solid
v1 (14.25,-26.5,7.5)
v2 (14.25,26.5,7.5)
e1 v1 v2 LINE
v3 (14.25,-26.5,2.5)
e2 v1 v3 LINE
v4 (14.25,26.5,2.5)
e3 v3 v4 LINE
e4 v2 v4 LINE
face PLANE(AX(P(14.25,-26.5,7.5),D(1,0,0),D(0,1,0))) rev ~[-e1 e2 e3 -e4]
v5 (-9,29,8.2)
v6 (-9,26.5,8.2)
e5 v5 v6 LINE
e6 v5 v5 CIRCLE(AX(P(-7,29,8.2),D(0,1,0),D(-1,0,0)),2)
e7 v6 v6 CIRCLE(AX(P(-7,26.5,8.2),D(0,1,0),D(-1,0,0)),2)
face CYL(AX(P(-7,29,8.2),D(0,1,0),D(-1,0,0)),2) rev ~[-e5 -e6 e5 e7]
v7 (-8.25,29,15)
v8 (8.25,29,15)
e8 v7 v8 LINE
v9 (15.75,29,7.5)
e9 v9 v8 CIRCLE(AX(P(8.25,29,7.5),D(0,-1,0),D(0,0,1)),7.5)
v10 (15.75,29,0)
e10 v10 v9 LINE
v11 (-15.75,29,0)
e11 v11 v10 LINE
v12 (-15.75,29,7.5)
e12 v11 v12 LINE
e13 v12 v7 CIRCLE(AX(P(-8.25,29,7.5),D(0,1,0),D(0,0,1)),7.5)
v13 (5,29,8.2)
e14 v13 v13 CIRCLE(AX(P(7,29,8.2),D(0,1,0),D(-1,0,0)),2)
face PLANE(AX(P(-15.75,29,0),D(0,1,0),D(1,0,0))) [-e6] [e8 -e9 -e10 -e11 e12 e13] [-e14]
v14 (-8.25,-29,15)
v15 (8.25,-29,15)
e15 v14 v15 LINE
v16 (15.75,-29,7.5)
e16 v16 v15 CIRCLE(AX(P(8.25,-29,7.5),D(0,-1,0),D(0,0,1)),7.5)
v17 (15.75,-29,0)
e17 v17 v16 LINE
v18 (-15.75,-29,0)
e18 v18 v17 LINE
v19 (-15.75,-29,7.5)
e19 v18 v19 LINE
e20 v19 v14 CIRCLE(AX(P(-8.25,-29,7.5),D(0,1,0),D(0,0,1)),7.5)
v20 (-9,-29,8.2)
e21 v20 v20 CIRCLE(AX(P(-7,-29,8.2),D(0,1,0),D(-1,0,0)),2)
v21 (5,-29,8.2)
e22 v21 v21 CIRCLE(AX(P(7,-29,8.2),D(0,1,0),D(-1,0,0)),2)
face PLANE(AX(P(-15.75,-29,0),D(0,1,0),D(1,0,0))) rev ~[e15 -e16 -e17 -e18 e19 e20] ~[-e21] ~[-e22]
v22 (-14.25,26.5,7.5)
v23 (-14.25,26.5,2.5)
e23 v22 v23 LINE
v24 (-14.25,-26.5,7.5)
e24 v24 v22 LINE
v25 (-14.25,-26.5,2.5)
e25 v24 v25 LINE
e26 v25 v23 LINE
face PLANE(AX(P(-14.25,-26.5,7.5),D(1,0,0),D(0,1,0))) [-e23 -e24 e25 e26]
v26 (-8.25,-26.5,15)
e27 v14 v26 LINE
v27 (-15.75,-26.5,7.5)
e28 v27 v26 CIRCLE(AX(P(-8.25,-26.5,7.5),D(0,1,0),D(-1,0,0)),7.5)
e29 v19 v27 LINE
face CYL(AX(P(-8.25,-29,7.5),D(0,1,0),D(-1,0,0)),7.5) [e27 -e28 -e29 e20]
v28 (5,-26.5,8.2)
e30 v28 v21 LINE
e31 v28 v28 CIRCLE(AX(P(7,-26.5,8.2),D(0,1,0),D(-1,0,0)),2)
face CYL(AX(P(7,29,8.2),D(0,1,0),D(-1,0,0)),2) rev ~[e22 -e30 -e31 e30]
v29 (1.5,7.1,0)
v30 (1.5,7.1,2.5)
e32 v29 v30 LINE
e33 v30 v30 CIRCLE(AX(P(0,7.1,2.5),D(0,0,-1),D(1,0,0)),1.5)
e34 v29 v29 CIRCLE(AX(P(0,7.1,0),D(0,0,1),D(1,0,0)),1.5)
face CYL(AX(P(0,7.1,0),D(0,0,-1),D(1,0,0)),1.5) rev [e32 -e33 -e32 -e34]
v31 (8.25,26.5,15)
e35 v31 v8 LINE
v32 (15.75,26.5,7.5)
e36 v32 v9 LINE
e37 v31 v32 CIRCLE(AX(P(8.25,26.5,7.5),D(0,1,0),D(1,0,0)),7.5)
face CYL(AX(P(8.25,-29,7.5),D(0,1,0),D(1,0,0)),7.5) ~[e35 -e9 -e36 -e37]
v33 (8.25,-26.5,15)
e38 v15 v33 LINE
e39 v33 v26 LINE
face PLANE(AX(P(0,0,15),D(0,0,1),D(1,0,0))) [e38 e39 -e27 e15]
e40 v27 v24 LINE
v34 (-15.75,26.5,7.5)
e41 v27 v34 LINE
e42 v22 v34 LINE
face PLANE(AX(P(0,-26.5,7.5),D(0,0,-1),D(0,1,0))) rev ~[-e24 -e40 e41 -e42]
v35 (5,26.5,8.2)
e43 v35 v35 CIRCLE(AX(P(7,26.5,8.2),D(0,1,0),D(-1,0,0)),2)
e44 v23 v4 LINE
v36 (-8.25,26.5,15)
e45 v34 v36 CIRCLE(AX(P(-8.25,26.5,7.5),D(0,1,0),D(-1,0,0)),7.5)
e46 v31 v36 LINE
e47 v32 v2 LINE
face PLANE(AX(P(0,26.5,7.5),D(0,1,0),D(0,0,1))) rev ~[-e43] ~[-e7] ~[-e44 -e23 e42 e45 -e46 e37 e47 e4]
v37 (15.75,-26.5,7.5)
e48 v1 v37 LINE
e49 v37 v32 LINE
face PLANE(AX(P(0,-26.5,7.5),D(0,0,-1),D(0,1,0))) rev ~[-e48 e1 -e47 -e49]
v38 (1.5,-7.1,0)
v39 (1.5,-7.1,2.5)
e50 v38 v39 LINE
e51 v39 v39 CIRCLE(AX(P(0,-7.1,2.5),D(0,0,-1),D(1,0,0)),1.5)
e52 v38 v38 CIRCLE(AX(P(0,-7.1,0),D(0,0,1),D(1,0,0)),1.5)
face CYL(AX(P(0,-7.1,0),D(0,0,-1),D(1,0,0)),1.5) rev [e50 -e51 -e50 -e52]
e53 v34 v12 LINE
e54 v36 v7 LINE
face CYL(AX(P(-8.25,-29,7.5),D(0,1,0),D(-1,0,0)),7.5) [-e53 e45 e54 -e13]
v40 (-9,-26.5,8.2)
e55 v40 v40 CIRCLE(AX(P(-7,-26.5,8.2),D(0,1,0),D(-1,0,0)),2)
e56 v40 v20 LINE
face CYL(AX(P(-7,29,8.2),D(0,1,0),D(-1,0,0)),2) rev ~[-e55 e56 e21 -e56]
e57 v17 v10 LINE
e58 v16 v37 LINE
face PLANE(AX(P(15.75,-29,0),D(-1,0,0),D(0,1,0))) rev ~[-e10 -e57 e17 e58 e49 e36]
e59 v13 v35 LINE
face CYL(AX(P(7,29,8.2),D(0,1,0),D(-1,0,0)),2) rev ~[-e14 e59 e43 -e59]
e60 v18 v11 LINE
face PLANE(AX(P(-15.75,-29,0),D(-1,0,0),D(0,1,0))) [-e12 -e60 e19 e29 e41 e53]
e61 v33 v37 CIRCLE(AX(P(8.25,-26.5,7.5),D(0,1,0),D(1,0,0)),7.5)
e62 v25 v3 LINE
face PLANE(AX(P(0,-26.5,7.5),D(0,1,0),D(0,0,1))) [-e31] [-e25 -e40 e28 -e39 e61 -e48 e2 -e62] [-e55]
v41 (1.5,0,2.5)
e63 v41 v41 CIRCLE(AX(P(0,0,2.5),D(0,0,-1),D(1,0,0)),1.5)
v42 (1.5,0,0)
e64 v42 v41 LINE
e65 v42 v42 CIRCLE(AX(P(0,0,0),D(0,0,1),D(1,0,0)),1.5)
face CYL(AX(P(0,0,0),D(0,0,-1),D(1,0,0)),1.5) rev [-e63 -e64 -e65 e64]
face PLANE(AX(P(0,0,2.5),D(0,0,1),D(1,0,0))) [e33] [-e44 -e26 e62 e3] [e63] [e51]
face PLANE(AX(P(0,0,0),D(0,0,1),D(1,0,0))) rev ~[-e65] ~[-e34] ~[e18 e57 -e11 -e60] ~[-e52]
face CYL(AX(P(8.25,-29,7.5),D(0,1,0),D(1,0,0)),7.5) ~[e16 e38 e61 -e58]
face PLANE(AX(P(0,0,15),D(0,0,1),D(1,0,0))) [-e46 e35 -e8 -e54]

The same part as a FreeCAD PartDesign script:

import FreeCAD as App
import Part
import Sketcher
Q = App.Units.Quantity


def edges_at(feature, points):
    """Names of the edges that pass closest to the given points."""
    edges = feature.Shape.Edges
    near = lambda p: min(range(len(edges)), key=lambda i: edges[i].distToShape(Part.Vertex(*p))[0])
    return sorted({f"Edge{near(p) + 1}" for p in points})

doc = App.newDocument("Part")
params = doc.addObject("Spreadsheet::Sheet", "Params")
for row, (alias, value) in enumerate([
    ("sketch1_height", "58 mm"),
    ("sketch1_width", "31.5 mm"),
    ("pad1_length", "15 mm"),
    ("fillet_radius", "7.5 mm"),
    ("sketch2_width", "53 mm"),
    ("sketch2_height", "15 mm"),
    ("sketch3_height", "53 mm"),
    ("sketch3_width", "28.5 mm"),
    ("pocket2_length", "5 mm"),
    ("sketch4_diameter", "3 mm"),
    ("sketch5_diameter", "4 mm"),
], start=1):
    params.set(f"A{row}", alias)
    params.set(f"B{row}", "=" + value)
    params.setAlias(f"B{row}", alias)

body = doc.addObject("PartDesign::Body", "Body")

sketch1 = body.newObject("Sketcher::SketchObject", "Sketch")
sketch1.AttachmentSupport = (doc.getObject("XY_Plane"), [""])
sketch1.MapMode = "FlatFace"
sketch1.addGeometry([
    Part.LineSegment(App.Vector(-16, 29, 0), App.Vector(-16, -29, 0)),
    Part.LineSegment(App.Vector(-16, -29, 0), App.Vector(16, -29, 0)),
    Part.LineSegment(App.Vector(16, -29, 0), App.Vector(16, 29, 0)),
    Part.LineSegment(App.Vector(16, 29, 0), App.Vector(-16, 29, 0)),
], False)
sketch1.addConstraint([
    Sketcher.Constraint("Coincident", 0, 2, 1, 1),
    Sketcher.Constraint("Coincident", 1, 2, 2, 1),
    Sketcher.Constraint("Coincident", 2, 2, 3, 1),
    Sketcher.Constraint("Coincident", 3, 2, 0, 1),
    Sketcher.Constraint("Vertical", 0),
    Sketcher.Constraint("Horizontal", 1),
    Sketcher.Constraint("Vertical", 2),
    Sketcher.Constraint("Horizontal", 3),
    Sketcher.Constraint("Symmetric", 0, 2, 2, 2, -1, 1),
    Sketcher.Constraint("DistanceY", 0, 2, 0, 1, Q("58 mm")),
    Sketcher.Constraint("DistanceX", 1, 1, 1, 2, Q("31.5 mm")),
])
sketch1.setExpression("Constraints[9]", "Params.sketch1_height")
sketch1.setExpression("Constraints[10]", "Params.sketch1_width")
pad1 = body.newObject("PartDesign::Pad", "Pad")
pad1.Profile = sketch1
pad1.setExpression("Length", "Params.pad1_length")
doc.recompute()

fillet = body.newObject("PartDesign::Fillet", "Fillet")
fillet.Base = (pad1, edges_at(pad1, [(15.75, 0, 15), (-15.75, 0, 15)]))
fillet.setExpression("Radius", "Params.fillet_radius")

sketch2 = body.newObject("Sketcher::SketchObject", "Sketch001")
sketch2.AttachmentSupport = (doc.getObject("YZ_Plane"), [""])
sketch2.MapMode = "FlatFace"
sketch2.addGeometry([
    Part.LineSegment(App.Vector(-26, 22, 0), App.Vector(-26, 8, 0)),
    Part.LineSegment(App.Vector(-26, 8, 0), App.Vector(26, 8, 0)),
    Part.LineSegment(App.Vector(26, 8, 0), App.Vector(26, 22, 0)),
    Part.LineSegment(App.Vector(26, 22, 0), App.Vector(-26, 22, 0)),
], False)
sketch2.addConstraint([
    Sketcher.Constraint("Coincident", 0, 2, 1, 1),
    Sketcher.Constraint("Coincident", 1, 2, 2, 1),
    Sketcher.Constraint("Coincident", 2, 2, 3, 1),
    Sketcher.Constraint("Coincident", 3, 2, 0, 1),
    Sketcher.Constraint("Vertical", 0),
    Sketcher.Constraint("Horizontal", 1),
    Sketcher.Constraint("Vertical", 2),
    Sketcher.Constraint("Horizontal", 3),
    Sketcher.Constraint("DistanceX", 1, 1, 1, 2, Q("53 mm")),
    Sketcher.Constraint("DistanceY", 0, 2, 0, 1, Q("15 mm")),
    Sketcher.Constraint("DistanceX", 0, 2, -1, 1, Q("26.5 mm")),
    Sketcher.Constraint("DistanceY", -1, 1, 0, 2, Q("7.5 mm")),
])
sketch2.setExpression("Constraints[8]", "Params.sketch2_width")
sketch2.setExpression("Constraints[9]", "Params.sketch2_height")
pocket1 = body.newObject("PartDesign::Pocket", "Pocket")
pocket1.Profile = sketch2
pocket1.Type = "ThroughAll"
pocket1.Midplane = True

sketch3 = body.newObject("Sketcher::SketchObject", "Sketch002")
sketch3.AttachmentSupport = (doc.getObject("XY_Plane"), [""])
sketch3.MapMode = "FlatFace"
sketch3.AttachmentOffset = App.Placement(App.Vector(0, 0, 7.5), App.Rotation())
sketch3.addGeometry([
    Part.LineSegment(App.Vector(-14, 26, 0), App.Vector(-14, -26, 0)),
    Part.LineSegment(App.Vector(-14, -26, 0), App.Vector(14, -26, 0)),
    Part.LineSegment(App.Vector(14, -26, 0), App.Vector(14, 26, 0)),
    Part.LineSegment(App.Vector(14, 26, 0), App.Vector(-14, 26, 0)),
], False)
sketch3.addConstraint([
    Sketcher.Constraint("Coincident", 0, 2, 1, 1),
    Sketcher.Constraint("Coincident", 1, 2, 2, 1),
    Sketcher.Constraint("Coincident", 2, 2, 3, 1),
    Sketcher.Constraint("Coincident", 3, 2, 0, 1),
    Sketcher.Constraint("Vertical", 0),
    Sketcher.Constraint("Horizontal", 1),
    Sketcher.Constraint("Vertical", 2),
    Sketcher.Constraint("Horizontal", 3),
    Sketcher.Constraint("Symmetric", 0, 2, 2, 2, -1, 1),
    Sketcher.Constraint("DistanceY", 0, 2, 0, 1, Q("53 mm")),
    Sketcher.Constraint("DistanceX", 1, 1, 1, 2, Q("28.5 mm")),
])
sketch3.setExpression("Constraints[9]", "Params.sketch3_height")
sketch3.setExpression("Constraints[10]", "Params.sketch3_width")
pocket2 = body.newObject("PartDesign::Pocket", "Pocket001")
pocket2.Profile = sketch3
pocket2.setExpression("Length", "Params.pocket2_length")

sketch4 = body.newObject("Sketcher::SketchObject", "Sketch003")
sketch4.AttachmentSupport = (doc.getObject("XY_Plane"), [""])
sketch4.MapMode = "FlatFace"
sketch4.addGeometry([
    Part.Circle(App.Vector(0, 7.1, 0), App.Vector(0, 0, 1), 1.5),
    Part.Circle(App.Vector(0, 0, 0), App.Vector(0, 0, 1), 1.5),
    Part.Circle(App.Vector(0, -7.1, 0), App.Vector(0, 0, 1), 1.5),
], False)
sketch4.addConstraint([
    Sketcher.Constraint("Coincident", 1, 3, -1, 1),
    Sketcher.Constraint("Equal", 0, 1),
    Sketcher.Constraint("Equal", 1, 2),
    Sketcher.Constraint("Symmetric", 0, 3, 2, 3, -1, 1),
    Sketcher.Constraint("PointOnObject", 0, 3, -2),
    Sketcher.Constraint("Diameter", 0, Q("3 mm")),
    Sketcher.Constraint("DistanceY", -1, 1, 0, 3, Q("7.1 mm")),
])
sketch4.setExpression("Constraints[5]", "Params.sketch4_diameter")
pocket3 = body.newObject("PartDesign::Pocket", "Pocket002")
pocket3.Profile = sketch4
pocket3.Type = "ThroughAll"
pocket3.Reversed = True

sketch5 = body.newObject("Sketcher::SketchObject", "Sketch004")
sketch5.AttachmentSupport = (doc.getObject("XZ_Plane"), [""])
sketch5.MapMode = "FlatFace"
sketch5.AttachmentOffset = App.Placement(App.Vector(0, 0, -29), App.Rotation())
sketch5.addGeometry([
    Part.Circle(App.Vector(7, 8.2, 0), App.Vector(0, 0, 1), 2),
    Part.Circle(App.Vector(-7, 8.2, 0), App.Vector(0, 0, 1), 2),
], False)
sketch5.addConstraint([
    Sketcher.Constraint("Equal", 0, 1),
    Sketcher.Constraint("Symmetric", 0, 3, 1, 3, -2),
    Sketcher.Constraint("Diameter", 0, Q("4 mm")),
    Sketcher.Constraint("DistanceX", -1, 1, 0, 3, Q("7 mm")),
    Sketcher.Constraint("DistanceY", -1, 1, 0, 3, Q("8.2 mm")),
])
sketch5.setExpression("Constraints[2]", "Params.sketch5_diameter")
pocket4 = body.newObject("PartDesign::Pocket", "Pocket003")
pocket4.Profile = sketch5
pocket4.Type = "ThroughAll"
pocket4.Reversed = True

doc.recompute()
